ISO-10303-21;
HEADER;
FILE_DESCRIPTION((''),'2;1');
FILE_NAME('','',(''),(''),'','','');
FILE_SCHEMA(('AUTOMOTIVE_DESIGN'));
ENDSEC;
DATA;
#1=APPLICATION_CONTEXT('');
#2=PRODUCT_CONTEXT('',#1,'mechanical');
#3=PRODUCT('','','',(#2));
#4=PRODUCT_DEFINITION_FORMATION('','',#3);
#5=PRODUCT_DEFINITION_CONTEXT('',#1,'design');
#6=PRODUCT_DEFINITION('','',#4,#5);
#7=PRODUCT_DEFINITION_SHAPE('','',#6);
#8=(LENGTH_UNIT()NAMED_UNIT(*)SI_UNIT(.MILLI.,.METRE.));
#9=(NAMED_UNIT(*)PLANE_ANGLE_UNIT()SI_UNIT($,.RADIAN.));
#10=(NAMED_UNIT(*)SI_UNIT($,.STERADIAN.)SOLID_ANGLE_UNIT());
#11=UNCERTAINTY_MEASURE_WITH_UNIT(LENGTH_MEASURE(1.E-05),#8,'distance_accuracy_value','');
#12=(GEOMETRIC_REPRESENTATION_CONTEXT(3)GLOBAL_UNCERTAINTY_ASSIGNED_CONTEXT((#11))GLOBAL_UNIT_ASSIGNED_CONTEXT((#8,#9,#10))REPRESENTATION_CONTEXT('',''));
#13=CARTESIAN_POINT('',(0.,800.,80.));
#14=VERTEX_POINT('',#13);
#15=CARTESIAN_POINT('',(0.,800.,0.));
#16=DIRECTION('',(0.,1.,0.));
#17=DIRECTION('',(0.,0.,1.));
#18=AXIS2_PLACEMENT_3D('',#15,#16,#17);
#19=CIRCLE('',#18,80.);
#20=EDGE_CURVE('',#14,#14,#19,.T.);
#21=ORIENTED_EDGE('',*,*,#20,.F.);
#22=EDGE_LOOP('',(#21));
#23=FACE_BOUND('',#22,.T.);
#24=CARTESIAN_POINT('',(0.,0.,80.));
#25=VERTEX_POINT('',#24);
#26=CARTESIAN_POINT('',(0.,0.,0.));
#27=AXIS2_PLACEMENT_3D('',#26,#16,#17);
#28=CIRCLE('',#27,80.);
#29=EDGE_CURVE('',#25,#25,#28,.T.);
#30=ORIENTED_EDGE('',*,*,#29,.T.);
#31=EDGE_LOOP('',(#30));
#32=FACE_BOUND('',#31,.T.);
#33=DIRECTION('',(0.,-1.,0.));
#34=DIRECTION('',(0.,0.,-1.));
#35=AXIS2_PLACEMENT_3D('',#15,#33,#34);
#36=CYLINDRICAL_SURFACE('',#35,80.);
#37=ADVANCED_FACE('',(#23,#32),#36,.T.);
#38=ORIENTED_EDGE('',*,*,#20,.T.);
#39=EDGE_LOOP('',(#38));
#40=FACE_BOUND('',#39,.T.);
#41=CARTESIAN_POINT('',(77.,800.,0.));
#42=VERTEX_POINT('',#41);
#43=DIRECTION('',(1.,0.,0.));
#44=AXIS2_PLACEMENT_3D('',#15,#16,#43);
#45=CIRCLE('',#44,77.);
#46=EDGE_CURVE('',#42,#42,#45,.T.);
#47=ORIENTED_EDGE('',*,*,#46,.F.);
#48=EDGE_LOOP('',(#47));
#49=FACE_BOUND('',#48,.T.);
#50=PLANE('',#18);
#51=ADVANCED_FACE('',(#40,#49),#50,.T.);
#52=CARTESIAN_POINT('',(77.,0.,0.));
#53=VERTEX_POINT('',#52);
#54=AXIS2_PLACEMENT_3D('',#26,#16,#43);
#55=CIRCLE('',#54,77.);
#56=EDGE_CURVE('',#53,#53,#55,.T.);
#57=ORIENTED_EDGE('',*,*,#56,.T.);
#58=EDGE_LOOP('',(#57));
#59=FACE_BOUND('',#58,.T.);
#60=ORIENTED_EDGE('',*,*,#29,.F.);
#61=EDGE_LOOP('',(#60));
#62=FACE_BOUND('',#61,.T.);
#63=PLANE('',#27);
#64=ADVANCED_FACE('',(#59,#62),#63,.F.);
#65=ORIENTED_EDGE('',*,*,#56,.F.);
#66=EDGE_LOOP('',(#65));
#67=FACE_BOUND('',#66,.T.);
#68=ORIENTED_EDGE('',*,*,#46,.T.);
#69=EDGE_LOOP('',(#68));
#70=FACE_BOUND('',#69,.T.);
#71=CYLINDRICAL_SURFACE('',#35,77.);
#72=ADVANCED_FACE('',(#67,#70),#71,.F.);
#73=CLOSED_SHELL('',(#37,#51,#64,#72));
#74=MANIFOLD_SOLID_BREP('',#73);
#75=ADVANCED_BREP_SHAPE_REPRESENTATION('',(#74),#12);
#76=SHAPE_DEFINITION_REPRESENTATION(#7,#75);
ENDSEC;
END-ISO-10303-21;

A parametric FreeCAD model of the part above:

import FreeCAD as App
import Part
import Sketcher

V = App.Vector

doc = App.newDocument("Part")
params = doc.addObject("Spreadsheet::Sheet", "Params")
for row, (alias, value) in enumerate([
    ("sketch1_diameter", "160 mm"),
    ("sketch1_diameter2", "154 mm"),
    ("pad1_length", "800 mm"),
], start=1):
    params.set(f"A{row}", alias)
    params.set(f"B{row}", "=" + value)
    params.setAlias(f"B{row}", alias)

body = doc.addObject("PartDesign::Body", "Body")

# Sketch on XZ plane
sketch1 = doc.addObject("Sketcher::SketchObject", "Sketch")
body.addObject(sketch1)
sketch1.AttachmentSupport = (doc.XZ_Plane, [""])
sketch1.MapMode = "FlatFace"
sketch1.addGeometry([
    Part.Circle(V(0, 0, 0), V(0, 0, 1), 80),
    Part.Circle(V(0, 0, 0), V(0, 0, 1), 77),
], False)
sketch1.addConstraint([
    Sketcher.Constraint("Coincident", 0, 3, -1, 1),
    Sketcher.Constraint("Coincident", 1, 3, -1, 1),
    Sketcher.Constraint("Diameter", 0, 160.0),
    Sketcher.Constraint("Diameter", 1, 154.0),
])
sketch1.setExpression("Constraints[2]", "Params.sketch1_diameter")
sketch1.setExpression("Constraints[3]", "Params.sketch1_diameter2")
pad1 = doc.addObject("PartDesign::Pad", "Pad")
body.addObject(pad1)
pad1.Profile = sketch1
pad1.setExpression("Length", "Params.pad1_length")
pad1.Reversed = True

doc.recompute()
